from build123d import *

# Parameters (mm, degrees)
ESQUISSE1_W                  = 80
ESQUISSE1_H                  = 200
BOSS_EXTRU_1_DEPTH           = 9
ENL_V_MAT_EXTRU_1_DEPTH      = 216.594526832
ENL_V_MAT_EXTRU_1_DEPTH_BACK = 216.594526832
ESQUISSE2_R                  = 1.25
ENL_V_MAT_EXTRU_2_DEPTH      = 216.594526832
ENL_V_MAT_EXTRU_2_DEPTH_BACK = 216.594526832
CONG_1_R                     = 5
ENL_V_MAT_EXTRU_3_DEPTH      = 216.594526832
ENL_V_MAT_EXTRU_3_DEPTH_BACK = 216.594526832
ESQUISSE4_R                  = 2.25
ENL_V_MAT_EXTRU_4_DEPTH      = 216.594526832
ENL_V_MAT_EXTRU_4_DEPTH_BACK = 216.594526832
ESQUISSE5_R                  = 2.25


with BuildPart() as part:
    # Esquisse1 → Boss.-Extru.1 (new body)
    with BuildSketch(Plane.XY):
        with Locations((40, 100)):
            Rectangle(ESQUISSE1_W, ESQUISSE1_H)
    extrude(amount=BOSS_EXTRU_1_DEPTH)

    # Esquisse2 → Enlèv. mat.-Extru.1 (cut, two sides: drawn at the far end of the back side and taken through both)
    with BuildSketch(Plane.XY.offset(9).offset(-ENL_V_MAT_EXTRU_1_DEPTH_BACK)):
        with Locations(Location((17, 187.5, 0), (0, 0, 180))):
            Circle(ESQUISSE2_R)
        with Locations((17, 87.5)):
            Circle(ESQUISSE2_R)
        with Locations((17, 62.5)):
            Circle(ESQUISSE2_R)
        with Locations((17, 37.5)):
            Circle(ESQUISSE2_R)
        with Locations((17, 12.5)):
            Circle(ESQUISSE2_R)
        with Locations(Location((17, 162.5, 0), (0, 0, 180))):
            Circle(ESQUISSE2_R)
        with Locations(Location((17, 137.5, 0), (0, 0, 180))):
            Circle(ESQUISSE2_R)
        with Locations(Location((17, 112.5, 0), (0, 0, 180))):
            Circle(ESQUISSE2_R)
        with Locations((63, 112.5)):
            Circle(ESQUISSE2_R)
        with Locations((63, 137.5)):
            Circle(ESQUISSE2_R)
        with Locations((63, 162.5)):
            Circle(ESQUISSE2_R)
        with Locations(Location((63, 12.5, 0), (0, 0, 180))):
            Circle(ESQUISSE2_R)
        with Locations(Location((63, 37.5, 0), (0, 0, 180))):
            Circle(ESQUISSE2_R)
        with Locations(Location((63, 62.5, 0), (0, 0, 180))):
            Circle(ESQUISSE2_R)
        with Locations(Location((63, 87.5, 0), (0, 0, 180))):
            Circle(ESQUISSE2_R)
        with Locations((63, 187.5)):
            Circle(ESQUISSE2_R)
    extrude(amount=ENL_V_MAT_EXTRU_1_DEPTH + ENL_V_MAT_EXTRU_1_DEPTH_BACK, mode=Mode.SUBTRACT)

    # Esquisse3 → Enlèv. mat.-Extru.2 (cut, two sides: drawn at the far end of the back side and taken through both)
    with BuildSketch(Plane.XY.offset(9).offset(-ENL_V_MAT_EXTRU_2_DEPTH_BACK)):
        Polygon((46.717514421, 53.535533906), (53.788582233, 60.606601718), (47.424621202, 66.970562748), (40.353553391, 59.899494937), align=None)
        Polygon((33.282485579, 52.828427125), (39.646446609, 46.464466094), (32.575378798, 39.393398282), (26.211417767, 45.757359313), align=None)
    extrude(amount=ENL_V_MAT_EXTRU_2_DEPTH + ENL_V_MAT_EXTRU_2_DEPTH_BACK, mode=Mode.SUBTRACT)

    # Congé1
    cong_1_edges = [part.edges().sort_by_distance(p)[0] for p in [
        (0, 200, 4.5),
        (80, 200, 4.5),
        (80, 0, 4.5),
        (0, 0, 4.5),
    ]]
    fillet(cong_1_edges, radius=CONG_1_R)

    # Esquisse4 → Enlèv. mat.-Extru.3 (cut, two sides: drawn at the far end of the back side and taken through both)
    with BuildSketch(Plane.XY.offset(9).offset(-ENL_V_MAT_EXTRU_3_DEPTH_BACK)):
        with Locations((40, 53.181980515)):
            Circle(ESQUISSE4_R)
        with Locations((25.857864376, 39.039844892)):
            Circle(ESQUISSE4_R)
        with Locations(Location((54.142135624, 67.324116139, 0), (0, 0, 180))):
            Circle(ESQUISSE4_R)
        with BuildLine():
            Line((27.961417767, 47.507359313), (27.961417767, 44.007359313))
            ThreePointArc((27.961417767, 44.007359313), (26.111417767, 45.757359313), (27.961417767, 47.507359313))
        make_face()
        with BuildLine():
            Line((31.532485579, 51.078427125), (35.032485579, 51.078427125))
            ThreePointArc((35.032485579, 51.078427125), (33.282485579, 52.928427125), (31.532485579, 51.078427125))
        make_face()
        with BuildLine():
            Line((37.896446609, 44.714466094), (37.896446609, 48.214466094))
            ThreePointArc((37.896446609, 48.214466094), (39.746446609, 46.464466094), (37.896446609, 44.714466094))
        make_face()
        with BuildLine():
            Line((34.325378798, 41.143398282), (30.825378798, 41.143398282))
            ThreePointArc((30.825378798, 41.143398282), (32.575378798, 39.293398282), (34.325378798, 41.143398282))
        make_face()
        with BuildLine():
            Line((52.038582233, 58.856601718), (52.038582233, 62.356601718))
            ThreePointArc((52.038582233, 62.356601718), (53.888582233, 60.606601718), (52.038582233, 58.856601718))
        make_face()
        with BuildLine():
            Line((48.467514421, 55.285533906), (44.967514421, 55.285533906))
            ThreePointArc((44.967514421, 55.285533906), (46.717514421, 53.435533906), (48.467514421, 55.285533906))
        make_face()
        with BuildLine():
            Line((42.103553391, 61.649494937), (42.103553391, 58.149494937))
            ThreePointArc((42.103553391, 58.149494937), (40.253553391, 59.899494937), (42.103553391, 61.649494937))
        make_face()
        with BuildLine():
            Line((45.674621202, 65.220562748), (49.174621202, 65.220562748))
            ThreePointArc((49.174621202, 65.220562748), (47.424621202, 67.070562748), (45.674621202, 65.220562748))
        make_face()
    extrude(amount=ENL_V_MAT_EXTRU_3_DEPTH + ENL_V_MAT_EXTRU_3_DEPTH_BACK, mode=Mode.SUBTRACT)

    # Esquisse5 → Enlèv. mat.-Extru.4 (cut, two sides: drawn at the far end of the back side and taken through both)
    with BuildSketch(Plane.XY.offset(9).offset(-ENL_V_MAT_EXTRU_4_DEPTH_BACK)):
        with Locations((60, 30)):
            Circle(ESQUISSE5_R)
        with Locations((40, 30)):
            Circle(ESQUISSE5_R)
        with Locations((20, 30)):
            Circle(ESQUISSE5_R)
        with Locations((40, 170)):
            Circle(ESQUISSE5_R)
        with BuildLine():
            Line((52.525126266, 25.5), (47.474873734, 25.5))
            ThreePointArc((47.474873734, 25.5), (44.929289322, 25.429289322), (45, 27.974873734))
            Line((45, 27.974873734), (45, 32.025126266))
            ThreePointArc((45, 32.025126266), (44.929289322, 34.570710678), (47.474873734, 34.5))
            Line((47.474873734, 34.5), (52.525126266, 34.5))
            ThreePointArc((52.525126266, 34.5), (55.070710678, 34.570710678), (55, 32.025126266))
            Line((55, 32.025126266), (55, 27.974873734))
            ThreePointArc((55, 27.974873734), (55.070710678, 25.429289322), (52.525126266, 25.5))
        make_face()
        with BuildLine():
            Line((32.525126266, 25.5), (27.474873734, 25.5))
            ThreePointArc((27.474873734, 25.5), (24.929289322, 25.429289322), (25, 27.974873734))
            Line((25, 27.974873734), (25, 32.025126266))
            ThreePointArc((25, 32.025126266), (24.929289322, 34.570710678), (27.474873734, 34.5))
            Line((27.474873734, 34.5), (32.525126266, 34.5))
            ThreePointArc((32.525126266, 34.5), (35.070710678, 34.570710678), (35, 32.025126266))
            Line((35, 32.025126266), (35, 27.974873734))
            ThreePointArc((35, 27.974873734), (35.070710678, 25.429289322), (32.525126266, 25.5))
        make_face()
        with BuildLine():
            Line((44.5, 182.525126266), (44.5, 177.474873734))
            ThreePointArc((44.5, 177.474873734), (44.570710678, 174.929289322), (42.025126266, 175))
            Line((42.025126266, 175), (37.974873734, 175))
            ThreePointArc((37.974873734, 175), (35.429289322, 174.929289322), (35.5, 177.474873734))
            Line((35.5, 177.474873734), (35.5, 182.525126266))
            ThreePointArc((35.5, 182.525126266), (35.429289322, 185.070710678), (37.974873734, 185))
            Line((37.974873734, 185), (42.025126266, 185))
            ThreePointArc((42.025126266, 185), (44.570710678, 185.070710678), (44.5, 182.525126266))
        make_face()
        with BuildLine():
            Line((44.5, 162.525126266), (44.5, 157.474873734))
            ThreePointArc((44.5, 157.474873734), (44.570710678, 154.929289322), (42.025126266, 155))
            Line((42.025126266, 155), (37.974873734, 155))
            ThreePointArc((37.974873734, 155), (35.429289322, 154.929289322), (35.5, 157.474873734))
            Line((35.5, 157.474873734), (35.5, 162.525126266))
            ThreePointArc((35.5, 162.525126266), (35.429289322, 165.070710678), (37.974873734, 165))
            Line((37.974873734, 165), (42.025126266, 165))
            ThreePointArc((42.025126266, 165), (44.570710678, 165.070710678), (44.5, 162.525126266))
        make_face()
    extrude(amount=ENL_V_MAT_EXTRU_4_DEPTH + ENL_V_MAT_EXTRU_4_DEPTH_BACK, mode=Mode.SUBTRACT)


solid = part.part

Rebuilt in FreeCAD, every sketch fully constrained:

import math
import FreeCAD as App
import Part
import Sketcher

V = App.Vector
Q = App.Units.Quantity


def edges_at(feature, points):
    """Names of the edges that pass closest to the given points."""
    edges = feature.Shape.Edges
    near = lambda p: min(range(len(edges)), key=lambda i: edges[i].distToShape(Part.Vertex(*p))[0])
    return sorted({f"Edge{near(p) + 1}" for p in points})

doc = App.newDocument("Part")
body = doc.addObject("PartDesign::Body", "Body")

# Sketch on XY plane
sketch1 = body.newObject("Sketcher::SketchObject", "Sketch")
sketch1.AttachmentSupport = (doc.getObject("XY_Plane"), [""])
sketch1.MapMode = "FlatFace"
sketch1.addGeometry([
    Part.LineSegment(V(0, 200, 0), V(0, 0, 0)),
    Part.LineSegment(V(0, 0, 0), V(80, 0, 0)),
    Part.LineSegment(V(80, 0, 0), V(80, 200, 0)),
    Part.LineSegment(V(80, 200, 0), V(0, 200, 0)),
], False)
sketch1.addConstraint([
    Sketcher.Constraint("Coincident", 0, 2, 1, 1),
    Sketcher.Constraint("Coincident", 1, 2, 2, 1),
    Sketcher.Constraint("Coincident", 2, 2, 3, 1),
    Sketcher.Constraint("Coincident", 3, 2, 0, 1),
    Sketcher.Constraint("Vertical", 0),
    Sketcher.Constraint("Horizontal", 1),
    Sketcher.Constraint("Vertical", 2),
    Sketcher.Constraint("Horizontal", 3),
    Sketcher.Constraint("Coincident", 0, 2, -1, 1),
    Sketcher.Constraint("DistanceX", 1, 1, 1, 2, 80.0),
    Sketcher.Constraint("DistanceY", 0, 2, 0, 1, 200.0),
])
pad1 = body.newObject("PartDesign::Pad", "Pad")
pad1.Profile = sketch1
pad1.Length = 9

# Sketch on XY plane
sketch2 = body.newObject("Sketcher::SketchObject", "Sketch001")
sketch2.AttachmentSupport = (doc.getObject("XY_Plane"), [""])
sketch2.MapMode = "FlatFace"
sketch2.AttachmentOffset = App.Placement(V(0, 0, 9), App.Rotation())
sketch2.addGeometry([
    Part.Circle(V(17, 187.5, 0), V(0, 0, 1), 1.2),  # 0
    Part.Circle(V(17, 87.5, 0), V(0, 0, 1), 1.2),  # 1
    Part.Circle(V(17, 62.5, 0), V(0, 0, 1), 1.2),  # 2
    Part.Circle(V(17, 37.5, 0), V(0, 0, 1), 1.2),  # 3
    Part.Circle(V(17, 12.5, 0), V(0, 0, 1), 1.2),  # 4
    Part.Circle(V(17, 162.5, 0), V(0, 0, 1), 1.2),  # 5
    Part.Circle(V(17, 137.5, 0), V(0, 0, 1), 1.2),  # 6
    Part.Circle(V(17, 112.5, 0), V(0, 0, 1), 1.2),  # 7
    Part.Circle(V(63, 112.5, 0), V(0, 0, 1), 1.2),  # 8
    Part.Circle(V(63, 137.5, 0), V(0, 0, 1), 1.2),  # 9
    Part.Circle(V(63, 162.5, 0), V(0, 0, 1), 1.2),  # 10
    Part.Circle(V(63, 12.5, 0), V(0, 0, 1), 1.2),  # 11
    Part.Circle(V(63, 37.5, 0), V(0, 0, 1), 1.2),  # 12
    Part.Circle(V(63, 62.5, 0), V(0, 0, 1), 1.2),  # 13
    Part.Circle(V(63, 87.5, 0), V(0, 0, 1), 1.2),  # 14
    Part.Circle(V(63, 187.5, 0), V(0, 0, 1), 1.2),  # 15
], False)
sketch2.addConstraint([
    Sketcher.Constraint("Equal", 0, 1),
    Sketcher.Constraint("Equal", 1, 2),
    Sketcher.Constraint("Equal", 2, 3),
    Sketcher.Constraint("Equal", 3, 4),
    Sketcher.Constraint("Equal", 4, 5),
    Sketcher.Constraint("Equal", 5, 6),
    Sketcher.Constraint("Equal", 6, 7),
    Sketcher.Constraint("Equal", 7, 8),
    Sketcher.Constraint("Equal", 8, 9),
    Sketcher.Constraint("Equal", 9, 10),
    Sketcher.Constraint("Equal", 10, 11),
    Sketcher.Constraint("Equal", 11, 12),
    Sketcher.Constraint("Equal", 12, 13),
    Sketcher.Constraint("Equal", 13, 14),
    Sketcher.Constraint("Equal", 14, 15),
    Sketcher.Constraint("Horizontal", 7, 3, 8, 3),
    Sketcher.Constraint("Horizontal", 6, 3, 9, 3),
    Sketcher.Constraint("Horizontal", 5, 3, 10, 3),
    Sketcher.Constraint("Horizontal", 4, 3, 11, 3),
    Sketcher.Constraint("Horizontal", 3, 3, 12, 3),
    Sketcher.Constraint("Horizontal", 2, 3, 13, 3),
    Sketcher.Constraint("Horizontal", 1, 3, 14, 3),
    Sketcher.Constraint("Horizontal", 0, 3, 15, 3),
    Sketcher.Constraint("Vertical", 0, 3, 1, 3),
    Sketcher.Constraint("Vertical", 1, 3, 2, 3),
    Sketcher.Constraint("Vertical", 2, 3, 3, 3),
    Sketcher.Constraint("Vertical", 3, 3, 4, 3),
    Sketcher.Constraint("Vertical", 4, 3, 5, 3),
    Sketcher.Constraint("Vertical", 5, 3, 6, 3),
    Sketcher.Constraint("Vertical", 6, 3, 7, 3),
    Sketcher.Constraint("Vertical", 8, 3, 9, 3),
    Sketcher.Constraint("Vertical", 9, 3, 10, 3),
    Sketcher.Constraint("Vertical", 10, 3, 11, 3),
    Sketcher.Constraint("Vertical", 11, 3, 12, 3),
    Sketcher.Constraint("Vertical", 12, 3, 13, 3),
    Sketcher.Constraint("Vertical", 13, 3, 14, 3),
    Sketcher.Constraint("Vertical", 14, 3, 15, 3),
    Sketcher.Constraint("Diameter", 0, 2.5),
    Sketcher.Constraint("DistanceX", -1, 1, 0, 3, 17.0),
    Sketcher.Constraint("DistanceX", -1, 1, 8, 3, 63.0),
    Sketcher.Constraint("DistanceY", 1, 3, 0, 3, 100.0),
    Sketcher.Constraint("DistanceY", 2, 3, 1, 3, 25.0),
    Sketcher.Constraint("DistanceY", 3, 3, 2, 3, 25.0),
    Sketcher.Constraint("DistanceY", 4, 3, 3, 3, 25.0),
    Sketcher.Constraint("DistanceY", 5, 3, 0, 3, 25.0),
    Sketcher.Constraint("DistanceY", 6, 3, 5, 3, 25.0),
    Sketcher.Constraint("DistanceY", 1, 3, 7, 3, 25.0),
    Sketcher.Constraint("DistanceY", -1, 1, 0, 3, 187.5),
])
pocket1 = body.newObject("PartDesign::Pocket", "Pocket")
pocket1.Profile = sketch2
pocket1.Type = "ThroughAll"
pocket1.Midplane = True

# Sketch on XY plane
sketch3 = body.newObject("Sketcher::SketchObject", "Sketch002")
sketch3.AttachmentSupport = (doc.getObject("XY_Plane"), [""])
sketch3.MapMode = "FlatFace"
sketch3.AttachmentOffset = App.Placement(V(0, 0, 9), App.Rotation())
sketch3.addGeometry([
    Part.LineSegment(V(47, 54, 0), V(54, 61, 0)),  # 0
    Part.LineSegment(V(54, 61, 0), V(47, 67, 0)),  # 1
    Part.LineSegment(V(47, 67, 0), V(40, 60, 0)),  # 2
    Part.LineSegment(V(40, 60, 0), V(47, 54, 0)),  # 3
    Part.LineSegment(V(40, 46, 0), V(33, 53, 0)),  # 4
    Part.LineSegment(V(33, 53, 0), V(26, 46, 0)),  # 5
    Part.LineSegment(V(26, 46, 0), V(33, 39, 0)),  # 6
    Part.LineSegment(V(33, 39, 0), V(40, 46, 0)),  # 7
], False)
sketch3.addConstraint([
    Sketcher.Constraint("Coincident", 0, 2, 1, 1),
    Sketcher.Constraint("Coincident", 1, 2, 2, 1),
    Sketcher.Constraint("Coincident", 2, 2, 3, 1),
    Sketcher.Constraint("Coincident", 3, 2, 0, 1),
    Sketcher.Constraint("Coincident", 4, 2, 5, 1),
    Sketcher.Constraint("Coincident", 5, 2, 6, 1),
    Sketcher.Constraint("Coincident", 6, 2, 7, 1),
    Sketcher.Constraint("Coincident", 7, 2, 4, 1),
    Sketcher.Constraint("Perpendicular", 0, 1),
    Sketcher.Constraint("Perpendicular", 1, 2),
    Sketcher.Constraint("Perpendicular", 2, 3),
    Sketcher.Constraint("Parallel", 3, 4),
    Sketcher.Constraint("Perpendicular", 4, 5),
    Sketcher.Constraint("Perpendicular", 5, 6),
    Sketcher.Constraint("Perpendicular", 6, 7),
    Sketcher.Constraint("Equal", 3, 4),
    Sketcher.Constraint("Equal", 2, 5),
    Sketcher.Constraint("Angle", 0, Q("45 deg")),
    Sketcher.Constraint("Distance", 0, 10.0),
    Sketcher.Constraint("Distance", 1, 9.0),
    Sketcher.Constraint("DistanceY", -1, 1, 0, 2, 60.606602),
    Sketcher.Constraint("DistanceY", -1, 1, 6, 2, 39.393398),
    Sketcher.Constraint("DistanceX", -1, 1, 1, 2, 47.424621),
    Sketcher.Constraint("DistanceX", -1, 1, 6, 2, 32.575379),
])
pocket2 = body.newObject("PartDesign::Pocket", "Pocket001")
pocket2.Profile = sketch3
pocket2.Type = "ThroughAll"
pocket2.Midplane = True
doc.recompute()

fillet = body.newObject("PartDesign::Fillet", "Fillet")
fillet.Base = (pocket2, edges_at(pocket2, [
    (0, 200, 4.5),
    (80, 200, 4.5),
    (80, 0, 4.5),
    (0, 0, 4.5),
]))
fillet.Radius = 5

# Sketch on XY plane
sketch4 = body.newObject("Sketcher::SketchObject", "Sketch003")
sketch4.AttachmentSupport = (doc.getObject("XY_Plane"), [""])
sketch4.MapMode = "FlatFace"
sketch4.AttachmentOffset = App.Placement(V(0, 0, 9), App.Rotation())
sketch4.addGeometry([
    Part.Circle(V(40, 53.2, 0), V(0, 0, 1), 2.2),  # 0
    Part.Circle(V(25.9, 39, 0), V(0, 0, 1), 2.2),  # 1
    Part.Circle(V(54.1, 67.3, 0), V(0, 0, 1), 2.2),  # 2
    Part.LineSegment(V(28, 44, 0), V(28, 47.5, 0)),  # 3
    Part.ArcOfCircle(Part.Circle(V(27.9, 45.8, 0), V(0, 0, 1), 1.8), math.radians(87), math.radians(273)),  # 4
    Part.LineSegment(V(31.5, 51.1, 0), V(35, 51.1, 0)),  # 5
    Part.ArcOfCircle(Part.Circle(V(33.3, 51.2, 0), V(0, 0, 1), 1.8), math.radians(-3), math.radians(183)),  # 6
    Part.LineSegment(V(37.9, 48.2, 0), V(37.9, 44.7, 0)),  # 7
    Part.ArcOfCircle(Part.Circle(V(38, 46.5, 0), V(0, 0, 1), 1.8), math.radians(-93), math.radians(93)),  # 8
    Part.LineSegment(V(34.3, 41.1, 0), V(30.8, 41.1, 0)),  # 9
    Part.ArcOfCircle(Part.Circle(V(32.6, 41, 0), V(0, 0, 1), 1.8), math.radians(177), math.radians(363)),  # 10
    Part.LineSegment(V(52, 62.4, 0), V(52, 58.9, 0)),  # 11
    Part.ArcOfCircle(Part.Circle(V(52.1, 60.6, 0), V(0, 0, 1), 1.8), math.radians(-93), math.radians(93)),  # 12
    Part.LineSegment(V(48.5, 55.3, 0), V(45, 55.3, 0)),  # 13
    Part.ArcOfCircle(Part.Circle(V(46.7, 55.2, 0), V(0, 0, 1), 1.8), math.radians(177), math.radians(363)),  # 14
    Part.LineSegment(V(42.1, 58.1, 0), V(42.1, 61.6, 0)),  # 15
    Part.ArcOfCircle(Part.Circle(V(42, 59.9, 0), V(0, 0, 1), 1.8), math.radians(87), math.radians(273)),  # 16
    Part.LineSegment(V(45.7, 65.2, 0), V(49.2, 65.2, 0)),  # 17
    Part.ArcOfCircle(Part.Circle(V(47.4, 65.3, 0), V(0, 0, 1), 1.8), math.radians(-3), math.radians(183)),  # 18
], False)
sketch4.addConstraint([
    Sketcher.Constraint("Coincident", 3, 1, 4, 2),
    Sketcher.Constraint("Coincident", 4, 1, 3, 2),
    Sketcher.Constraint("Coincident", 5, 1, 6, 2),
    Sketcher.Constraint("Coincident", 6, 1, 5, 2),
    Sketcher.Constraint("Coincident", 7, 1, 8, 2),
    Sketcher.Constraint("Coincident", 8, 1, 7, 2),
    Sketcher.Constraint("Coincident", 9, 1, 10, 2),
    Sketcher.Constraint("Coincident", 10, 1, 9, 2),
    Sketcher.Constraint("Coincident", 11, 1, 12, 2),
    Sketcher.Constraint("Coincident", 12, 1, 11, 2),
    Sketcher.Constraint("Coincident", 13, 1, 14, 2),
    Sketcher.Constraint("Coincident", 14, 1, 13, 2),
    Sketcher.Constraint("Coincident", 15, 1, 16, 2),
    Sketcher.Constraint("Coincident", 16, 1, 15, 2),
    Sketcher.Constraint("Coincident", 17, 1, 18, 2),
    Sketcher.Constraint("Coincident", 18, 1, 17, 2),
    Sketcher.Constraint("Vertical", 3),
    Sketcher.Constraint("Horizontal", 5),
    Sketcher.Constraint("Vertical", 7),
    Sketcher.Constraint("Horizontal", 9),
    Sketcher.Constraint("Vertical", 11),
    Sketcher.Constraint("Horizontal", 13),
    Sketcher.Constraint("Vertical", 15),
    Sketcher.Constraint("Horizontal", 17),
    Sketcher.Constraint("Equal", 0, 1),
    Sketcher.Constraint("Equal", 1, 2),
    Sketcher.Constraint("Equal", 4, 6),
    Sketcher.Constraint("Equal", 6, 8),
    Sketcher.Constraint("Equal", 8, 10),
    Sketcher.Constraint("Equal", 10, 12),
    Sketcher.Constraint("Equal", 12, 14),
    Sketcher.Constraint("Equal", 14, 16),
    Sketcher.Constraint("Equal", 16, 18),
    Sketcher.Constraint("Equal", 5, 9),
    Sketcher.Constraint("Equal", 9, 13),
    Sketcher.Constraint("Equal", 13, 17),
    Sketcher.Constraint("Equal", 17, 3),
    Sketcher.Constraint("Equal", 3, 7),
    Sketcher.Constraint("Equal", 7, 11),
    Sketcher.Constraint("Equal", 11, 15),
    Sketcher.Constraint("Diameter", 0, 4.5),
    Sketcher.Constraint("DistanceX", 5, 1, 5, 2, 3.5),
    Sketcher.Constraint("DistanceX", -1, 1, 0, 3, 40.0),
    Sketcher.Constraint("Radius", 4, 1.752703),
    Sketcher.Constraint("DistanceY", -1, 1, 10, 3, 41.046101),
    Sketcher.Constraint("DistanceY", -1, 1, 12, 3, 60.606602),
    Sketcher.Constraint("DistanceX", 10, 3, 12, 3, 19.560501),
    Sketcher.Constraint("DistanceY", -1, 1, 0, 3, 53.181981),
    Sketcher.Constraint("DistanceX", -1, 1, 4, 3, 27.86412),
    Sketcher.Constraint("DistanceY", -1, 1, 4, 3, 45.757359),
    Sketcher.Constraint("DistanceX", -1, 1, 10, 3, 32.575379),
    Sketcher.Constraint("DistanceX", -1, 1, 18, 3, 47.424621),
    Sketcher.Constraint("DistanceY", -1, 1, 18, 3, 65.31786),
    Sketcher.Constraint("DistanceX", 1, 3, 2, 3, 28.284271),
    Sketcher.Constraint("DistanceY", 1, 3, 2, 3, 28.284271),
    Sketcher.Constraint("DistanceX", 1, 3, 6, 3, 7.424621),
    Sketcher.Constraint("DistanceY", 1, 3, 6, 3, 12.13588),
    Sketcher.Constraint("DistanceX", 6, 3, 8, 3, 4.711258),
    Sketcher.Constraint("DistanceY", 8, 3, 6, 3, 4.711258),
    Sketcher.Constraint("DistanceX", 8, 3, 14, 3, 8.723771),
    Sketcher.Constraint("DistanceY", 8, 3, 14, 3, 8.723771),
    Sketcher.Constraint("DistanceX", 16, 3, 14, 3, 4.711258),
    Sketcher.Constraint("DistanceY", 14, 3, 16, 3, 4.711258),
    Sketcher.Constraint("DistanceX", -1, 1, 1, 3, 25.857864),
    Sketcher.Constraint("DistanceY", -1, 1, 1, 3, 39.039845),
])
pocket3 = body.newObject("PartDesign::Pocket", "Pocket002")
pocket3.Profile = sketch4
pocket3.Type = "ThroughAll"
pocket3.Midplane = True

# Sketch on XY plane
sketch5 = body.newObject("Sketcher::SketchObject", "Sketch004")
sketch5.AttachmentSupport = (doc.getObject("XY_Plane"), [""])
sketch5.MapMode = "FlatFace"
sketch5.AttachmentOffset = App.Placement(V(0, 0, 9), App.Rotation())
sketch5.addGeometry([
    Part.Circle(V(60, 30, 0), V(0, 0, 1), 2.2),  # 0
    Part.Circle(V(40, 30, 0), V(0, 0, 1), 2.2),  # 1
    Part.Circle(V(20, 30, 0), V(0, 0, 1), 2.2),  # 2
    Part.Circle(V(40, 170, 0), V(0, 0, 1), 2.2),  # 3
    Part.LineSegment(V(47.5, 25.5, 0), V(52.5, 25.5, 0)),  # 4
    Part.ArcOfCircle(Part.Circle(V(53.8, 26.7, 0), V(0, 0, 1), 1.8), math.radians(-138), math.radians(48)),  # 5
    Part.LineSegment(V(55, 28, 0), V(55, 32, 0)),  # 6
    Part.ArcOfCircle(Part.Circle(V(53.8, 33.3, 0), V(0, 0, 1), 1.8), math.radians(-48), math.radians(138)),  # 7
    Part.LineSegment(V(52.5, 34.5, 0), V(47.5, 34.5, 0)),  # 8
    Part.ArcOfCircle(Part.Circle(V(46.2, 33.3, 0), V(0, 0, 1), 1.8), math.radians(42), math.radians(228)),  # 9
    Part.LineSegment(V(45, 32, 0), V(45, 28, 0)),  # 10
    Part.ArcOfCircle(Part.Circle(V(46.2, 26.7, 0), V(0, 0, 1), 1.8), math.radians(132), math.radians(318)),  # 11
    Part.LineSegment(V(27.5, 25.5, 0), V(32.5, 25.5, 0)),  # 12
    Part.ArcOfCircle(Part.Circle(V(33.8, 26.7, 0), V(0, 0, 1), 1.8), math.radians(-138), math.radians(48)),  # 13
    Part.LineSegment(V(35, 28, 0), V(35, 32, 0)),  # 14
    Part.ArcOfCircle(Part.Circle(V(33.8, 33.3, 0), V(0, 0, 1), 1.8), math.radians(-48), math.radians(138)),  # 15
    Part.LineSegment(V(32.5, 34.5, 0), V(27.5, 34.5, 0)),  # 16
    Part.ArcOfCircle(Part.Circle(V(26.2, 33.3, 0), V(0, 0, 1), 1.8), math.radians(42), math.radians(228)),  # 17
    Part.LineSegment(V(25, 32, 0), V(25, 28, 0)),  # 18
    Part.ArcOfCircle(Part.Circle(V(26.2, 26.7, 0), V(0, 0, 1), 1.8), math.radians(132), math.radians(318)),  # 19
    Part.LineSegment(V(44.5, 177.5, 0), V(44.5, 182.5, 0)),  # 20
    Part.ArcOfCircle(Part.Circle(V(43.3, 183.8, 0), V(0, 0, 1), 1.8), math.radians(-48), math.radians(138)),  # 21
    Part.LineSegment(V(42, 185, 0), V(38, 185, 0)),  # 22
    Part.ArcOfCircle(Part.Circle(V(36.7, 183.8, 0), V(0, 0, 1), 1.8), math.radians(42), math.radians(228)),  # 23
    Part.LineSegment(V(35.5, 182.5, 0), V(35.5, 177.5, 0)),  # 24
    Part.ArcOfCircle(Part.Circle(V(36.7, 176.2, 0), V(0, 0, 1), 1.8), math.radians(132), math.radians(318)),  # 25
    Part.LineSegment(V(38, 175, 0), V(42, 175, 0)),  # 26
    Part.ArcOfCircle(Part.Circle(V(43.3, 176.2, 0), V(0, 0, 1), 1.8), math.radians(-138), math.radians(48)),  # 27
    Part.LineSegment(V(44.5, 157.5, 0), V(44.5, 162.5, 0)),  # 28
    Part.ArcOfCircle(Part.Circle(V(43.3, 163.8, 0), V(0, 0, 1), 1.8), math.radians(-48), math.radians(138)),  # 29
    Part.LineSegment(V(42, 165, 0), V(38, 165, 0)),  # 30
    Part.ArcOfCircle(Part.Circle(V(36.7, 163.8, 0), V(0, 0, 1), 1.8), math.radians(42), math.radians(228)),  # 31
    Part.LineSegment(V(35.5, 162.5, 0), V(35.5, 157.5, 0)),  # 32
    Part.ArcOfCircle(Part.Circle(V(36.7, 156.2, 0), V(0, 0, 1), 1.8), math.radians(132), math.radians(318)),  # 33
    Part.LineSegment(V(38, 155, 0), V(42, 155, 0)),  # 34
    Part.ArcOfCircle(Part.Circle(V(43.3, 156.2, 0), V(0, 0, 1), 1.8), math.radians(-138), math.radians(48)),  # 35
], False)
sketch5.addConstraint([
    Sketcher.Constraint("Coincident", 4, 2, 5, 1),
    Sketcher.Constraint("Coincident", 5, 2, 6, 1),
    Sketcher.Constraint("Coincident", 6, 2, 7, 1),
    Sketcher.Constraint("Coincident", 7, 2, 8, 1),
    Sketcher.Constraint("Coincident", 8, 2, 9, 1),
    Sketcher.Constraint("Coincident", 9, 2, 10, 1),
    Sketcher.Constraint("Coincident", 10, 2, 11, 1),
    Sketcher.Constraint("Coincident", 11, 2, 4, 1),
    Sketcher.Constraint("Coincident", 12, 2, 13, 1),
    Sketcher.Constraint("Coincident", 13, 2, 14, 1),
    Sketcher.Constraint("Coincident", 14, 2, 15, 1),
    Sketcher.Constraint("Coincident", 15, 2, 16, 1),
    Sketcher.Constraint("Coincident", 16, 2, 17, 1),
    Sketcher.Constraint("Coincident", 17, 2, 18, 1),
    Sketcher.Constraint("Coincident", 18, 2, 19, 1),
    Sketcher.Constraint("Coincident", 19, 2, 12, 1),
    Sketcher.Constraint("Coincident", 20, 2, 21, 1),
    Sketcher.Constraint("Coincident", 21, 2, 22, 1),
    Sketcher.Constraint("Coincident", 22, 2, 23, 1),
    Sketcher.Constraint("Coincident", 23, 2, 24, 1),
    Sketcher.Constraint("Coincident", 24, 2, 25, 1),
    Sketcher.Constraint("Coincident", 25, 2, 26, 1),
    Sketcher.Constraint("Coincident", 26, 2, 27, 1),
    Sketcher.Constraint("Coincident", 27, 2, 20, 1),
    Sketcher.Constraint("Coincident", 28, 2, 29, 1),
    Sketcher.Constraint("Coincident", 29, 2, 30, 1),
    Sketcher.Constraint("Coincident", 30, 2, 31, 1),
    Sketcher.Constraint("Coincident", 31, 2, 32, 1),
    Sketcher.Constraint("Coincident", 32, 2, 33, 1),
    Sketcher.Constraint("Coincident", 33, 2, 34, 1),
    Sketcher.Constraint("Coincident", 34, 2, 35, 1),
    Sketcher.Constraint("Coincident", 35, 2, 28, 1),
    Sketcher.Constraint("Horizontal", 4),
    Sketcher.Constraint("Vertical", 6),
    Sketcher.Constraint("Horizontal", 8),
    Sketcher.Constraint("Vertical", 10),
    Sketcher.Constraint("Horizontal", 12),
    Sketcher.Constraint("Vertical", 14),
    Sketcher.Constraint("Horizontal", 16),
    Sketcher.Constraint("Vertical", 18),
    Sketcher.Constraint("Vertical", 20),
    Sketcher.Constraint("Horizontal", 22),
    Sketcher.Constraint("Vertical", 24),
    Sketcher.Constraint("Horizontal", 26),
    Sketcher.Constraint("Vertical", 28),
    Sketcher.Constraint("Horizontal", 30),
    Sketcher.Constraint("Vertical", 32),
    Sketcher.Constraint("Horizontal", 34),
    Sketcher.Constraint("Equal", 0, 1),
    Sketcher.Constraint("Equal", 1, 2),
    Sketcher.Constraint("Equal", 2, 3),
    Sketcher.Constraint("Equal", 5, 7),
    Sketcher.Constraint("Equal", 7, 9),
    Sketcher.Constraint("Equal", 9, 11),
    Sketcher.Constraint("Equal", 11, 13),
    Sketcher.Constraint("Equal", 13, 15),
    Sketcher.Constraint("Equal", 15, 17),
    Sketcher.Constraint("Equal", 17, 19),
    Sketcher.Constraint("Equal", 19, 21),
    Sketcher.Constraint("Equal", 21, 23),
    Sketcher.Constraint("Equal", 23, 25),
    Sketcher.Constraint("Equal", 25, 27),
    Sketcher.Constraint("Equal", 27, 29),
    Sketcher.Constraint("Equal", 29, 31),
    Sketcher.Constraint("Equal", 31, 33),
    Sketcher.Constraint("Equal", 33, 35),
    Sketcher.Constraint("Horizontal", 0, 3, 1, 3),
    Sketcher.Constraint("Horizontal", 1, 3, 2, 3),
    Sketcher.Constraint("Horizontal", 7, 3, 9, 3),
    Sketcher.Constraint("Horizontal", 5, 3, 11, 3),
    Sketcher.Constraint("Horizontal", 11, 3, 13, 3),
    Sketcher.Constraint("Horizontal", 9, 3, 15, 3),
    Sketcher.Constraint("Horizontal", 15, 3, 17, 3),
    Sketcher.Constraint("Horizontal", 13, 3, 19, 3),
    Sketcher.Constraint("Horizontal", 21, 3, 23, 3),
    Sketcher.Constraint("Horizontal", 25, 3, 27, 3),
    Sketcher.Constraint("Horizontal", 29, 3, 31, 3),
    Sketcher.Constraint("Horizontal", 33, 3, 35, 3),
    Sketcher.Constraint("Horizontal", 6, 2, 9, 2),
    Sketcher.Constraint("Horizontal", 5, 2, 10, 2),
    Sketcher.Constraint("Horizontal", 11, 2, 12, 2),
    Sketcher.Constraint("Horizontal", 10, 2, 13, 2),
    Sketcher.Constraint("Horizontal", 9, 2, 14, 2),
    Sketcher.Constraint("Horizontal", 8, 2, 15, 2),
    Sketcher.Constraint("Horizontal", 14, 2, 17, 2),
    Sketcher.Constraint("Horizontal", 13, 2, 18, 2),
    Sketcher.Constraint("Horizontal", 20, 2, 23, 2),
    Sketcher.Constraint("Horizontal", 24, 2, 27, 2),
    Sketcher.Constraint("Horizontal", 28, 2, 31, 2),
    Sketcher.Constraint("Horizontal", 32, 2, 35, 2),
    Sketcher.Constraint("Vertical", 1, 3, 3, 3),
    Sketcher.Constraint("Vertical", 5, 3, 7, 3),
    Sketcher.Constraint("Vertical", 23, 3, 25, 3),
    Sketcher.Constraint("Vertical", 27, 3, 29, 3),
    Sketcher.Constraint("Vertical", 25, 3, 31, 3),
    Sketcher.Constraint("Vertical", 31, 3, 33, 3),
    Sketcher.Constraint("Vertical", 4, 2, 7, 2),
    Sketcher.Constraint("Vertical", 22, 2, 25, 2),
    Sketcher.Constraint("Vertical", 27, 2, 28, 2),
    Sketcher.Constraint("Vertical", 26, 2, 29, 2),
    Sketcher.Constraint("Vertical", 30, 2, 33, 2),
    Sketcher.Constraint("Equal", 8, 12),
    Sketcher.Constraint("Equal", 34, 6),
    Sketcher.Constraint("Equal", 16, 20),
    Sketcher.Constraint("Equal", 24, 28),
    Sketcher.Constraint("Diameter", 0, 4.5),
    Sketcher.Constraint("DistanceX", -1, 1, 0, 3, 60.0),
    Sketcher.Constraint("DistanceY", -1, 1, 0, 3, 30.0),
    Sketcher.Constraint("DistanceX", -1, 1, 1, 3, 40.0),
    Sketcher.Constraint("DistanceX", -1, 1, 2, 3, 20.0),
    Sketcher.Constraint("DistanceY", -1, 1, 3, 3, 170.0),
    Sketcher.Constraint("DistanceX", -1, 1, 5, 2, 55.0),
    Sketcher.Constraint("DistanceX", -1, 1, 9, 2, 45.0),
    Sketcher.Constraint("DistanceX", -1, 1, 13, 2, 35.0),
    Sketcher.Constraint("DistanceY", -1, 1, 21, 2, 185.0),
    Sketcher.Constraint("DistanceY", -1, 1, 25, 2, 175.0),
    Sketcher.Constraint("DistanceY", -1, 1, 29, 2, 165.0),
    Sketcher.Constraint("DistanceY", -1, 1, 4, 2, 25.5),
    Sketcher.Constraint("DistanceY", -1, 1, 7, 2, 34.5),
    Sketcher.Constraint("DistanceX", -1, 1, 20, 2, 44.5),
    Sketcher.Constraint("DistanceX", -1, 1, 23, 2, 35.5),
    Sketcher.Constraint("DistanceY", 9, 3, 21, 3, 150.5),
    Sketcher.Constraint("Radius", 5, 1.752703),
    Sketcher.Constraint("DistanceX", 4, 1, 4, 2, 5.050253),
])
pocket4 = body.newObject("PartDesign::Pocket", "Pocket003")
pocket4.Profile = sketch5
pocket4.Type = "ThroughAll"
pocket4.Midplane = True

doc.recompute()
